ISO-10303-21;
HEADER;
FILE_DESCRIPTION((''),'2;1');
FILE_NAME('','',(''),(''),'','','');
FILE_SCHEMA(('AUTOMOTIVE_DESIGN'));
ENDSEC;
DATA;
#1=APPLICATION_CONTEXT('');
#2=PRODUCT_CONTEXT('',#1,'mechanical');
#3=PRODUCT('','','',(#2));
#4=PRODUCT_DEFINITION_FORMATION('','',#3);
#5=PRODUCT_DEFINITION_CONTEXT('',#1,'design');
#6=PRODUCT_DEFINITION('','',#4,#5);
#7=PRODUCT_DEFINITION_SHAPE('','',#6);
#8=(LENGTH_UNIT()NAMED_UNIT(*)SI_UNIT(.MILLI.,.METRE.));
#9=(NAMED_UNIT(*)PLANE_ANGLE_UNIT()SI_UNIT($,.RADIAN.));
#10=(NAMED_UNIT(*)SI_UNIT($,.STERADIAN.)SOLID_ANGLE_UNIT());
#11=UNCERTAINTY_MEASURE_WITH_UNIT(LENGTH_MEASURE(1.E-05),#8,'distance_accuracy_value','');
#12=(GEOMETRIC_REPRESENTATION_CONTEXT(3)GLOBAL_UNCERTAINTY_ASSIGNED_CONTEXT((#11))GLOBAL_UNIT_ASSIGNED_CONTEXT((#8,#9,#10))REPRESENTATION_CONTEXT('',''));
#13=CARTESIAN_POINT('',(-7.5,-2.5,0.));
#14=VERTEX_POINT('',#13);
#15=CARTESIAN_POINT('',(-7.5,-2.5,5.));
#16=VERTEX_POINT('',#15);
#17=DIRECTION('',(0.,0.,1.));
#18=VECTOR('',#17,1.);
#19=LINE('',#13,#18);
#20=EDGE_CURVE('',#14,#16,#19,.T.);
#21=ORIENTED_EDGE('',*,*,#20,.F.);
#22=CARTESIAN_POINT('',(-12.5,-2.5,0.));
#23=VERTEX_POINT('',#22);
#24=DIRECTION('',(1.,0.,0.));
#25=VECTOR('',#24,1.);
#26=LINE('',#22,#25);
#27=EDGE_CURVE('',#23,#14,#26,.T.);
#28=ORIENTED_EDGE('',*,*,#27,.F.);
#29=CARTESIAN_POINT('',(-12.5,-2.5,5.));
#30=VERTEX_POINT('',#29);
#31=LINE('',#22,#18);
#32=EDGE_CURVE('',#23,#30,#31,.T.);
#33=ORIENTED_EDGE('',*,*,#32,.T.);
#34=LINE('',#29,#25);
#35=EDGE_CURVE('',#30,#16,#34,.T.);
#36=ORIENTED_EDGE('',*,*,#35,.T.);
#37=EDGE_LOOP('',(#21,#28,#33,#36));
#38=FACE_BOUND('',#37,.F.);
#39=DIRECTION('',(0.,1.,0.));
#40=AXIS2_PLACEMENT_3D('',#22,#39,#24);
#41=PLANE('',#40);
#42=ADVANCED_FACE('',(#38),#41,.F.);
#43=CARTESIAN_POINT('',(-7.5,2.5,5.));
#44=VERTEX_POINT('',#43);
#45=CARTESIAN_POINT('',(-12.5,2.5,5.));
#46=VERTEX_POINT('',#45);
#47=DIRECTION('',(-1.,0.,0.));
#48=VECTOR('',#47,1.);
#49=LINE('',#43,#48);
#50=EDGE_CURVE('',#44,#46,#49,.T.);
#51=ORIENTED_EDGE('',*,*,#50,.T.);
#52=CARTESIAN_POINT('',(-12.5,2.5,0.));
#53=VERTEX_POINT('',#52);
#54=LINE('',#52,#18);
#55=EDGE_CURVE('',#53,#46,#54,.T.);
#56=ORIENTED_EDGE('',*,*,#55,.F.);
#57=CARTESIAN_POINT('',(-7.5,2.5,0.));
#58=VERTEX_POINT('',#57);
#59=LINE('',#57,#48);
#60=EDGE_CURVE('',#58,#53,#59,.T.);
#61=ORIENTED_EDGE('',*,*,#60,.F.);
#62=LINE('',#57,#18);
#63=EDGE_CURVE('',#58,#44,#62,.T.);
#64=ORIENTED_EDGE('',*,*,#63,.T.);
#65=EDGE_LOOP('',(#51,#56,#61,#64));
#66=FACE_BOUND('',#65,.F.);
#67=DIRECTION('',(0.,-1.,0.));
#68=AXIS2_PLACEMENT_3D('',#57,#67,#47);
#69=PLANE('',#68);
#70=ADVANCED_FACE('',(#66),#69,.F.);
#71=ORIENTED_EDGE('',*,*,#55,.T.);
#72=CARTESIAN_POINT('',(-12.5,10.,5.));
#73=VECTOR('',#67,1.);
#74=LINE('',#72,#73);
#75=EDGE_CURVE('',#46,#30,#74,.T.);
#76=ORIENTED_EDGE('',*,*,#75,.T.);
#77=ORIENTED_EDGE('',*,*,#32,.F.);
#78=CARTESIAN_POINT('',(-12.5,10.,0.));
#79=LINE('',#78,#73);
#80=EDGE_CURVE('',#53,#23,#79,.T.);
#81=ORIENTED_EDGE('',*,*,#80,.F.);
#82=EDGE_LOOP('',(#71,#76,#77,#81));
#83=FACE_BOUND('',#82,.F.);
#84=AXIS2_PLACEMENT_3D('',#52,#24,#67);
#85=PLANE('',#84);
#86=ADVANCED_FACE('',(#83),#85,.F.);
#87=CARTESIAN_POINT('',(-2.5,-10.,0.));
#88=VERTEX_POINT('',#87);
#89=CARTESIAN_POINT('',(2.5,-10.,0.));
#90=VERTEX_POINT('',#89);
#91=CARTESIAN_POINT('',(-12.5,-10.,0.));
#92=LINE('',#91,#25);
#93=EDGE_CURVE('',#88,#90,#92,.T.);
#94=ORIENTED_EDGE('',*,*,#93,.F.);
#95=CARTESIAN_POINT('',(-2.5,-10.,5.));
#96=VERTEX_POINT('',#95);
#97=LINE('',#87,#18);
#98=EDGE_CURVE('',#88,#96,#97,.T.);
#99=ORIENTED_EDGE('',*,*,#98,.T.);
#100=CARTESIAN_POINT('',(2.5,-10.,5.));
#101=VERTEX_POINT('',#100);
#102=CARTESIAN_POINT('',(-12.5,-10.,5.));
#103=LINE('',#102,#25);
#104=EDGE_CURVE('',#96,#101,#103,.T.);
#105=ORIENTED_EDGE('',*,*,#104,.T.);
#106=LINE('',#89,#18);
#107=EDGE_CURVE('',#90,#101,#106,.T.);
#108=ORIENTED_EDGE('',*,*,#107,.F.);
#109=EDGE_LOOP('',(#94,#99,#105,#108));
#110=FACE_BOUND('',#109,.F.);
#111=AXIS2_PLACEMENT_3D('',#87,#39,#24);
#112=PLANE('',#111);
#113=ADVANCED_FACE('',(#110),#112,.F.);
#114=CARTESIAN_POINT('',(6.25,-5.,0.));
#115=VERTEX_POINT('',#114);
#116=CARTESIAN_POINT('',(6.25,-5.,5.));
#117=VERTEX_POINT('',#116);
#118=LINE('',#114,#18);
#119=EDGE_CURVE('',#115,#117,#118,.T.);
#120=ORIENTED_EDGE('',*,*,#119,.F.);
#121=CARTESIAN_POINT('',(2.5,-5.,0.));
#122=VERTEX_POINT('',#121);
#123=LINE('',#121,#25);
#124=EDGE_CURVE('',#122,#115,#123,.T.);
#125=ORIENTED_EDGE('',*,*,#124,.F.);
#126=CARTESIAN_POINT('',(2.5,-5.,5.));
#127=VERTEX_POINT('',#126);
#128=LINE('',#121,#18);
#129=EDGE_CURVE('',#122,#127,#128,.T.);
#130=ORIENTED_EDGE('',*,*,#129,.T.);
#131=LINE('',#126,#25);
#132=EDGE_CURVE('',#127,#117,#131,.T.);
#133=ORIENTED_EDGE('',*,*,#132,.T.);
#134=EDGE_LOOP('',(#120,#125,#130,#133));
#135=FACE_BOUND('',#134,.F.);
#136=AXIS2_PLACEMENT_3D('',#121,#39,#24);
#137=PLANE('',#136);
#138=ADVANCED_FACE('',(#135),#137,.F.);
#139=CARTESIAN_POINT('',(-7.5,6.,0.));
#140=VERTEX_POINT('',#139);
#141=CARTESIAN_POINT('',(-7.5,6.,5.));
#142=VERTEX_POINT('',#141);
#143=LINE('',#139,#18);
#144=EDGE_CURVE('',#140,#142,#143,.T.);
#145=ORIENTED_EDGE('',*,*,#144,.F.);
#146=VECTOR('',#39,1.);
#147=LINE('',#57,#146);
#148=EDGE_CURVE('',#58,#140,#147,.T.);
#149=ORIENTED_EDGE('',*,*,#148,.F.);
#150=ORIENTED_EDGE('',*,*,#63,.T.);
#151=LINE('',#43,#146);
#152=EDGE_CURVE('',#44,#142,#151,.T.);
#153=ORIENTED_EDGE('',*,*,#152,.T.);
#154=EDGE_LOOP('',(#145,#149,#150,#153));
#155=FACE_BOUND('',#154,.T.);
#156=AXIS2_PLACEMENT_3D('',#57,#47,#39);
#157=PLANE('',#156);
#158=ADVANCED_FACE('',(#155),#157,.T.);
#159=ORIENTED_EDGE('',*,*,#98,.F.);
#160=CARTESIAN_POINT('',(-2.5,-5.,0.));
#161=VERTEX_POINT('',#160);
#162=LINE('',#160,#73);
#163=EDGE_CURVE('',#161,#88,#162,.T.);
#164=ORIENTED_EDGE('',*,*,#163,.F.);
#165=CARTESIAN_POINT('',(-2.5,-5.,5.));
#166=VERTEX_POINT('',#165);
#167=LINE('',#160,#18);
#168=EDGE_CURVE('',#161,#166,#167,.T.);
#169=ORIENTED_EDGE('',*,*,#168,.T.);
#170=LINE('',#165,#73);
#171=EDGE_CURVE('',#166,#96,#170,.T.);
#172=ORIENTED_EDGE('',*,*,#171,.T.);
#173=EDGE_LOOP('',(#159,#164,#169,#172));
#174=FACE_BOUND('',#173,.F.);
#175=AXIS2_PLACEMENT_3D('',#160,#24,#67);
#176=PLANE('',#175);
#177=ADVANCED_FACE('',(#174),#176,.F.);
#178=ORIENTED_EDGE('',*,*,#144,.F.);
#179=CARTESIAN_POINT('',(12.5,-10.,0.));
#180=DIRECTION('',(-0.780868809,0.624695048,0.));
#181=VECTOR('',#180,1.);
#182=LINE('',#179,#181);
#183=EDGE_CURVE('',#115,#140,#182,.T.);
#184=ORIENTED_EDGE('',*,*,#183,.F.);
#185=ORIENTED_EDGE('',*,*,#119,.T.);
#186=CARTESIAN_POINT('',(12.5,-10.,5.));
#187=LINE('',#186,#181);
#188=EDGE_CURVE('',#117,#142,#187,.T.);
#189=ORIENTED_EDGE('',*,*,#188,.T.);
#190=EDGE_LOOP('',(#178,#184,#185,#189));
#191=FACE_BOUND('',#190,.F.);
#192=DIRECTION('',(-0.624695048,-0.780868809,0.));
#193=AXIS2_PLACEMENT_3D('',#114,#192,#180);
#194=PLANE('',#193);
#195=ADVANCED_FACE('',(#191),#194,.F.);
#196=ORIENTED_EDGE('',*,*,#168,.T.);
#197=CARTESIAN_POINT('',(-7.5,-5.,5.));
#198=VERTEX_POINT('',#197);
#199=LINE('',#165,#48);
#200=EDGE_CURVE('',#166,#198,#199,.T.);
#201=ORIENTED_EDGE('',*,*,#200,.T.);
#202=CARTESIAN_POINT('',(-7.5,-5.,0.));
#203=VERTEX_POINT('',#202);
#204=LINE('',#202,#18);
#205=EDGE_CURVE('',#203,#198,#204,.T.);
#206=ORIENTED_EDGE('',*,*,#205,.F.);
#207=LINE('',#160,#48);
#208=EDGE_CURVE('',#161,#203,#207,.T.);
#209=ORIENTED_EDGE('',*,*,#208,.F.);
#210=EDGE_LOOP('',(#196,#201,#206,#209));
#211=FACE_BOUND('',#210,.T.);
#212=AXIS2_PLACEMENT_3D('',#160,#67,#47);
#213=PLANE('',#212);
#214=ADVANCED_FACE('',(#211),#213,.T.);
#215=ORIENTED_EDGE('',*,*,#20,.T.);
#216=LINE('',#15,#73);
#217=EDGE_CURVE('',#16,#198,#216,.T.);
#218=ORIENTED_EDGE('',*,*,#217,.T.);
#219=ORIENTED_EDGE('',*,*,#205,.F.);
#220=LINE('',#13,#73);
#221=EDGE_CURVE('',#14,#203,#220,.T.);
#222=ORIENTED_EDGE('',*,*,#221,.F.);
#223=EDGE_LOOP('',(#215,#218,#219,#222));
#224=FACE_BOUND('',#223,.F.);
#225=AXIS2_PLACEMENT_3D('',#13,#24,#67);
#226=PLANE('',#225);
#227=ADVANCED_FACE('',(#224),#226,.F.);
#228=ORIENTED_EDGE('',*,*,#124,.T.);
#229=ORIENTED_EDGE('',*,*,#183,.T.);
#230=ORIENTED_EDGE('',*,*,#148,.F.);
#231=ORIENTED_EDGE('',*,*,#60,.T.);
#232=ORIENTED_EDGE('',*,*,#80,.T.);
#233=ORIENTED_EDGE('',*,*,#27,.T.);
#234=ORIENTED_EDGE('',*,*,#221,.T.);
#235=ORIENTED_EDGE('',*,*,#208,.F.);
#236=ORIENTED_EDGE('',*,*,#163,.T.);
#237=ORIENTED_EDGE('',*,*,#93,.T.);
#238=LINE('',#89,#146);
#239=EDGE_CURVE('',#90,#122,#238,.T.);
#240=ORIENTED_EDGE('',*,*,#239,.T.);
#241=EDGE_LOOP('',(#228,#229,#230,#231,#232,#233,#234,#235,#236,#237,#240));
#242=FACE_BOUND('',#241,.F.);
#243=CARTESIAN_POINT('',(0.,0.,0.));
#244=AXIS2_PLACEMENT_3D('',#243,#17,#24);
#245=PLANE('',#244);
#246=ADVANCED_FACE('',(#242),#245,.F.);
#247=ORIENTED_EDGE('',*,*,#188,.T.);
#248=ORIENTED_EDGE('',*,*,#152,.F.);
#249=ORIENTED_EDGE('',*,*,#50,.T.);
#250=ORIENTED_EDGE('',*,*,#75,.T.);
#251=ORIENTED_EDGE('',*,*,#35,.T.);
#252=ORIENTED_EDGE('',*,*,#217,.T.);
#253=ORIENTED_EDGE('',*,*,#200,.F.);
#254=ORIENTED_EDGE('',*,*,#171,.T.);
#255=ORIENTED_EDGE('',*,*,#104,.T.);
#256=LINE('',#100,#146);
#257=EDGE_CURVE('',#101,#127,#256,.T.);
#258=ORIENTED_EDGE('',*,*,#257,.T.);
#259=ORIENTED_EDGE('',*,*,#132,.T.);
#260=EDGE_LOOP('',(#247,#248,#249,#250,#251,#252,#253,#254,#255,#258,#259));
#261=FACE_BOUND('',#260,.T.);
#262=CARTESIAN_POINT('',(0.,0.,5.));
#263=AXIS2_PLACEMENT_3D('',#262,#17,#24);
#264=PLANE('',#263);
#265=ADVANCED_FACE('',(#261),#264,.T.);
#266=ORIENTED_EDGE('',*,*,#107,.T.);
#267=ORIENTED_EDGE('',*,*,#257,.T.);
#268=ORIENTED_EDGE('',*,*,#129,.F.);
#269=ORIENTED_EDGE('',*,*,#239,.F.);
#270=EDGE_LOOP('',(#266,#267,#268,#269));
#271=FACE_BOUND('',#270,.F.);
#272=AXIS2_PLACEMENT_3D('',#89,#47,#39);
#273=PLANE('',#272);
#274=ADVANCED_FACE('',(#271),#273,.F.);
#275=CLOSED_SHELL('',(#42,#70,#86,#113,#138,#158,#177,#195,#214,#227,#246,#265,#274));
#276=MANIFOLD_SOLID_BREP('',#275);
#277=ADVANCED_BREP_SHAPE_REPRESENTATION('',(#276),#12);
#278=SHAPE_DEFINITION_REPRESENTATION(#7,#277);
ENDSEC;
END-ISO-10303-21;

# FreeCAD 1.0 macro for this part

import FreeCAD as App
import Part
import Sketcher
from FreeCAD import Vector


def add_polygon(sketch, points):
    """Adds a closed chain of lines whose ends are joined by coincident constraints."""
    first, n = sketch.GeometryCount, len(points)
    for a, b in zip(points, points[1:] + points[:1]):
        sketch.addGeometry(Part.LineSegment(App.Vector(*a, 0), App.Vector(*b, 0)), False)
    for i in range(n):
        sketch.addConstraint(Sketcher.Constraint("Coincident", first + i, 2, first + (i + 1) % n, 1))

doc = App.newDocument("Part")
body = doc.addObject("PartDesign::Body", "Body")

# Sketch on XY plane
sketch1 = body.newObject("Sketcher::SketchObject", "Sketch")
sketch1.AttachmentSupport = (doc.getObject("XY_Plane"), [""])
sketch1.MapMode = "FlatFace"
add_polygon(sketch1, [(-12.5, 2.5), (-12.5, -2.5), (-7.5, -2.5), (-7.5, -5), (-2.5, -5), (-2.5, -10), (2.5, -10), (2.5, -5), (6.25, -5), (-7.5, 6), (-7.5, 2.5)])  # lines 0-10
sketch1.addConstraint([
    Sketcher.Constraint("Vertical", 0),
    Sketcher.Constraint("Horizontal", 1),
    Sketcher.Constraint("Vertical", 2),
    Sketcher.Constraint("Horizontal", 3),
    Sketcher.Constraint("Vertical", 4),
    Sketcher.Constraint("Horizontal", 5),
    Sketcher.Constraint("Vertical", 6),
    Sketcher.Constraint("Horizontal", 7),
    Sketcher.Constraint("Vertical", 9),
    Sketcher.Constraint("Horizontal", 10),
    Sketcher.Constraint("Symmetric", 3, 2, 6, 2, -2),
    Sketcher.Constraint("Symmetric", 1, 2, 9, 2, -1),
    Sketcher.Constraint("Equal", 1, 3),
    Sketcher.Constraint("Equal", 3, 5),
    Sketcher.Constraint("Equal", 10, 0),
    Sketcher.Constraint("Equal", 0, 4),
    Sketcher.Constraint("DistanceX", 1, 1, 1, 2, 5.0),
    Sketcher.Constraint("DistanceY", 2, 2, -1, 1, 5.0),
    Sketcher.Constraint("DistanceY", 9, 2, 9, 1, 3.5),
    Sketcher.Constraint("DistanceX", 7, 1, 7, 2, 3.75),
])
pad1 = body.newObject("PartDesign::Pad", "Pad")
pad1.Profile = sketch1
pad1.Length = 5

doc.recompute()
